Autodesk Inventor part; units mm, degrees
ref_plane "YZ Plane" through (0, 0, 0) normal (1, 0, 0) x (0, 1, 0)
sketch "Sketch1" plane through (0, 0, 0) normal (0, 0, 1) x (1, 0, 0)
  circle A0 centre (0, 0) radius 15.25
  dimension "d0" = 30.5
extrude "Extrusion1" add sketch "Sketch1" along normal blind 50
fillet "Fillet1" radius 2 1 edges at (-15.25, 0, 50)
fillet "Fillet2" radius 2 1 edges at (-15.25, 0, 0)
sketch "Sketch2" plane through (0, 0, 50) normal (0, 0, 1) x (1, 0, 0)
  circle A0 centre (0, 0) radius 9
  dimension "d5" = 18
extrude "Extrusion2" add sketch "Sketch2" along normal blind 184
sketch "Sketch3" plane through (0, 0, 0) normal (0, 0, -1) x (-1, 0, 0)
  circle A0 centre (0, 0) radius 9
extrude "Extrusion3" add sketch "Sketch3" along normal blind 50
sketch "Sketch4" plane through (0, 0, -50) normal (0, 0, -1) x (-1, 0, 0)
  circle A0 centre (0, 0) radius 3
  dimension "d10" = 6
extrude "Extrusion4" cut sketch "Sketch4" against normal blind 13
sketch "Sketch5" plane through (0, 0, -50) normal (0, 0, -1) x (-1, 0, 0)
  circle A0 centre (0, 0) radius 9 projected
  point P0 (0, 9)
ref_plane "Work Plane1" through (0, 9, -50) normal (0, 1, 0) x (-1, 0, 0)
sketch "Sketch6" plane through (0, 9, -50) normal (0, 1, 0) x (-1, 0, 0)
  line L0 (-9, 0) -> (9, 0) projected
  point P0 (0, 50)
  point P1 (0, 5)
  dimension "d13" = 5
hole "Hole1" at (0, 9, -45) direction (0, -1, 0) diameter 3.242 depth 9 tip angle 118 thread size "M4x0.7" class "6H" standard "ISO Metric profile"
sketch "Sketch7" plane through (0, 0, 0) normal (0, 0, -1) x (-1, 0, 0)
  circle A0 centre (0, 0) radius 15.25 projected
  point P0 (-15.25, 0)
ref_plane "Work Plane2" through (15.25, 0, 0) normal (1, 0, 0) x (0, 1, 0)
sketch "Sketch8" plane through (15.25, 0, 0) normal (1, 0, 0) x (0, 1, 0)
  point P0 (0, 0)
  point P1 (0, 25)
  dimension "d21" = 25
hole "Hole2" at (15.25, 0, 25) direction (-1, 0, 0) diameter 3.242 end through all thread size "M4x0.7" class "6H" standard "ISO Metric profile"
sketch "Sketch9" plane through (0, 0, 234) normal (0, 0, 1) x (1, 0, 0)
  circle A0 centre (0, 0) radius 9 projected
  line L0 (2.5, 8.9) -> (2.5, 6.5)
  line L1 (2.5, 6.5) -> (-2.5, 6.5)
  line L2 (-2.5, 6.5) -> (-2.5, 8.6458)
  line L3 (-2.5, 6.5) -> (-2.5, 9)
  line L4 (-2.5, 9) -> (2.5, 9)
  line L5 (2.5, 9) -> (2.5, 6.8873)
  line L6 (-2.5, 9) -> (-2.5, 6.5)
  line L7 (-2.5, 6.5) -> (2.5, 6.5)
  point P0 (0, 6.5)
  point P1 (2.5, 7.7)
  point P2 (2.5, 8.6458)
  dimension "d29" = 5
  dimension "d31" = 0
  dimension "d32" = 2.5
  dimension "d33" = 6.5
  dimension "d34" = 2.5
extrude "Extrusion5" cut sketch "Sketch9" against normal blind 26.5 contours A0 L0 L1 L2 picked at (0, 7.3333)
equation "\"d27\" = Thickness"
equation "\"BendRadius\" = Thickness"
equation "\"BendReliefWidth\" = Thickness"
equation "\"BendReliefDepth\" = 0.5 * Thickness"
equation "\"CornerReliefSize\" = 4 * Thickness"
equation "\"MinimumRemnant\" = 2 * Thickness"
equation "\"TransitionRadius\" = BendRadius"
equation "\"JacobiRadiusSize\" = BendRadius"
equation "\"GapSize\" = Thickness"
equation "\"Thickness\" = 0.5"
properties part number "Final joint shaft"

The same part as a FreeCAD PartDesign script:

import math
import FreeCAD as App
import Part
import Sketcher
from FreeCAD import Vector
Q = App.Units.Quantity


def edges_at(feature, points):
    """Names of the edges that pass closest to the given points."""
    edges = feature.Shape.Edges
    near = lambda p: min(range(len(edges)), key=lambda i: edges[i].distToShape(Part.Vertex(*p))[0])
    return sorted({f"Edge{near(p) + 1}" for p in points})

doc = App.newDocument("Part")
body = doc.addObject("PartDesign::Body", "Body")

# Sketch on XY plane
sketch1 = body.newObject("Sketcher::SketchObject", "Sketch")
sketch1.AttachmentSupport = (doc.getObject("XY_Plane"), [""])
sketch1.MapMode = "FlatFace"
sketch1.addGeometry(Part.Circle(Vector(0, 0, 0), Vector(0, 0, 1), 15), False)
sketch1.addConstraint([
    Sketcher.Constraint("Coincident", 0, 3, -1, 1),
    Sketcher.Constraint("Diameter", 0, Q("30.5 mm")),
])
pad1 = body.newObject("PartDesign::Pad", "Pad")
pad1.Profile = sketch1
pad1.Length = 50
doc.recompute()

fillet = body.newObject("PartDesign::Fillet", "Fillet")
fillet.Base = (pad1, edges_at(pad1, [(-15.25, 0, 50)]))
fillet.Radius = 2
doc.recompute()

fillet2 = body.newObject("PartDesign::Fillet", "Fillet001")
fillet2.Base = (fillet, edges_at(fillet, [(-15.25, 0, 0)]))
fillet2.Radius = 2

# Sketch on XY plane
sketch2 = body.newObject("Sketcher::SketchObject", "Sketch001")
sketch2.AttachmentSupport = (doc.getObject("XY_Plane"), [""])
sketch2.MapMode = "FlatFace"
sketch2.AttachmentOffset = App.Placement(Vector(0, 0, 50), App.Rotation())
sketch2.addGeometry(Part.Circle(Vector(0, 0, 0), Vector(0, 0, 1), 9), False)
sketch2.addConstraint([
    Sketcher.Constraint("Coincident", 0, 3, -1, 1),
    Sketcher.Constraint("Diameter", 0, Q("18 mm")),
])
pad2 = body.newObject("PartDesign::Pad", "Pad001")
pad2.Profile = sketch2
pad2.Length = 184

# Sketch on XY plane
sketch3 = body.newObject("Sketcher::SketchObject", "Sketch002")
sketch3.AttachmentSupport = (doc.getObject("XY_Plane"), [""])
sketch3.MapMode = "FlatFace"
sketch3.addGeometry(Part.Circle(Vector(0, 0, 0), Vector(0, 0, 1), 9), False)
sketch3.addConstraint([
    Sketcher.Constraint("Coincident", 0, 3, -1, 1),
    Sketcher.Constraint("Diameter", 0, Q("18 mm")),
])
pad3 = body.newObject("PartDesign::Pad", "Pad002")
pad3.Profile = sketch3
pad3.Length = 50
pad3.Reversed = True

# Sketch on XY plane
sketch4 = body.newObject("Sketcher::SketchObject", "Sketch003")
sketch4.AttachmentSupport = (doc.getObject("XY_Plane"), [""])
sketch4.MapMode = "FlatFace"
sketch4.AttachmentOffset = App.Placement(Vector(0, 0, -50), App.Rotation())
sketch4.addGeometry(Part.Circle(Vector(0, 0, 0), Vector(0, 0, 1), 3), False)
sketch4.addConstraint([
    Sketcher.Constraint("Coincident", 0, 3, -1, 1),
    Sketcher.Constraint("Diameter", 0, Q("6 mm")),
])
pocket1 = body.newObject("PartDesign::Pocket", "Pocket")
pocket1.Profile = sketch4
pocket1.Length = 13
pocket1.Reversed = True

# Sketch on XZ plane
sketch5 = body.newObject("Sketcher::SketchObject", "Sketch004")
sketch5.AttachmentSupport = (doc.getObject("XZ_Plane"), [""])
sketch5.MapMode = "FlatFace"
sketch5.AttachmentOffset = App.Placement(Vector(0, 0, -9), App.Rotation())
sketch5.addGeometry(Part.Circle(Vector(0, -45, 0), Vector(0, 0, 1), 1.6), False)
sketch5.addConstraint([
    Sketcher.Constraint("PointOnObject", 0, 3, -2),
    Sketcher.Constraint("Diameter", 0, Q("3.242 mm")),
    Sketcher.Constraint("DistanceY", 0, 3, -1, 1, Q("45 mm")),
])
doc.recompute()
hole = body.newObject("PartDesign::Hole", "Hole")
hole.Profile = sketch5
hole.ThreadType = "None"
hole.Diameter = 3.242
hole.DepthType = "Dimension"
hole.Depth = 9
hole.DrillPoint = "Angled"
hole.DrillPointAngle = 118
hole.Reversed = True

# Sketch on YZ plane
sketch6 = body.newObject("Sketcher::SketchObject", "Sketch005")
sketch6.AttachmentSupport = (doc.getObject("YZ_Plane"), [""])
sketch6.MapMode = "FlatFace"
sketch6.AttachmentOffset = App.Placement(Vector(0, 0, 15.25), App.Rotation())
sketch6.addGeometry(Part.Circle(Vector(0, 25, 0), Vector(0, 0, 1), 1.6), False)
sketch6.addConstraint([
    Sketcher.Constraint("PointOnObject", 0, 3, -2),
    Sketcher.Constraint("Diameter", 0, Q("3.242 mm")),
    Sketcher.Constraint("DistanceY", -1, 1, 0, 3, Q("25 mm")),
])
doc.recompute()
hole2 = body.newObject("PartDesign::Hole", "Hole001")
hole2.Profile = sketch6
hole2.ThreadType = "None"
hole2.Diameter = 3.242
hole2.DepthType = "ThroughAll"

# Sketch on XY plane
sketch7 = body.newObject("Sketcher::SketchObject", "Sketch006")
sketch7.AttachmentSupport = (doc.getObject("XY_Plane"), [""])
sketch7.MapMode = "FlatFace"
sketch7.AttachmentOffset = App.Placement(Vector(0, 0, 234), App.Rotation())
sketch7.addGeometry([
    Part.ArcOfCircle(Part.Circle(Vector(0, 0, 0), Vector(0, 0, 1), 9), math.radians(74), math.radians(106)),
    Part.LineSegment(Vector(-2.5, 8.6, 0), Vector(-2.5, 6.5, 0)),
    Part.LineSegment(Vector(-2.5, 6.5, 0), Vector(2.5, 6.5, 0)),
    Part.LineSegment(Vector(2.5, 6.5, 0), Vector(2.5, 8.6, 0)),
], False)
sketch7.addConstraint([
    Sketcher.Constraint("Coincident", 0, 2, 1, 1),
    Sketcher.Constraint("Coincident", 1, 2, 2, 1),
    Sketcher.Constraint("Coincident", 2, 2, 3, 1),
    Sketcher.Constraint("Coincident", 3, 2, 0, 1),
    Sketcher.Constraint("Vertical", 1),
    Sketcher.Constraint("Horizontal", 2),
    Sketcher.Constraint("Vertical", 3),
    Sketcher.Constraint("Coincident", 0, 3, -1, 1),
    Sketcher.Constraint("Horizontal", 0, 2, 3, 2),
    Sketcher.Constraint("DistanceX", 2, 1, 2, 2, Q("5 mm")),
    Sketcher.Constraint("Radius", 0, Q("9 mm")),
    Sketcher.Constraint("DistanceY", -1, 1, 1, 2, Q("6.5 mm")),
])
pocket2 = body.newObject("PartDesign::Pocket", "Pocket001")
pocket2.Profile = sketch7
pocket2.Length = 26.5

doc.recompute()
